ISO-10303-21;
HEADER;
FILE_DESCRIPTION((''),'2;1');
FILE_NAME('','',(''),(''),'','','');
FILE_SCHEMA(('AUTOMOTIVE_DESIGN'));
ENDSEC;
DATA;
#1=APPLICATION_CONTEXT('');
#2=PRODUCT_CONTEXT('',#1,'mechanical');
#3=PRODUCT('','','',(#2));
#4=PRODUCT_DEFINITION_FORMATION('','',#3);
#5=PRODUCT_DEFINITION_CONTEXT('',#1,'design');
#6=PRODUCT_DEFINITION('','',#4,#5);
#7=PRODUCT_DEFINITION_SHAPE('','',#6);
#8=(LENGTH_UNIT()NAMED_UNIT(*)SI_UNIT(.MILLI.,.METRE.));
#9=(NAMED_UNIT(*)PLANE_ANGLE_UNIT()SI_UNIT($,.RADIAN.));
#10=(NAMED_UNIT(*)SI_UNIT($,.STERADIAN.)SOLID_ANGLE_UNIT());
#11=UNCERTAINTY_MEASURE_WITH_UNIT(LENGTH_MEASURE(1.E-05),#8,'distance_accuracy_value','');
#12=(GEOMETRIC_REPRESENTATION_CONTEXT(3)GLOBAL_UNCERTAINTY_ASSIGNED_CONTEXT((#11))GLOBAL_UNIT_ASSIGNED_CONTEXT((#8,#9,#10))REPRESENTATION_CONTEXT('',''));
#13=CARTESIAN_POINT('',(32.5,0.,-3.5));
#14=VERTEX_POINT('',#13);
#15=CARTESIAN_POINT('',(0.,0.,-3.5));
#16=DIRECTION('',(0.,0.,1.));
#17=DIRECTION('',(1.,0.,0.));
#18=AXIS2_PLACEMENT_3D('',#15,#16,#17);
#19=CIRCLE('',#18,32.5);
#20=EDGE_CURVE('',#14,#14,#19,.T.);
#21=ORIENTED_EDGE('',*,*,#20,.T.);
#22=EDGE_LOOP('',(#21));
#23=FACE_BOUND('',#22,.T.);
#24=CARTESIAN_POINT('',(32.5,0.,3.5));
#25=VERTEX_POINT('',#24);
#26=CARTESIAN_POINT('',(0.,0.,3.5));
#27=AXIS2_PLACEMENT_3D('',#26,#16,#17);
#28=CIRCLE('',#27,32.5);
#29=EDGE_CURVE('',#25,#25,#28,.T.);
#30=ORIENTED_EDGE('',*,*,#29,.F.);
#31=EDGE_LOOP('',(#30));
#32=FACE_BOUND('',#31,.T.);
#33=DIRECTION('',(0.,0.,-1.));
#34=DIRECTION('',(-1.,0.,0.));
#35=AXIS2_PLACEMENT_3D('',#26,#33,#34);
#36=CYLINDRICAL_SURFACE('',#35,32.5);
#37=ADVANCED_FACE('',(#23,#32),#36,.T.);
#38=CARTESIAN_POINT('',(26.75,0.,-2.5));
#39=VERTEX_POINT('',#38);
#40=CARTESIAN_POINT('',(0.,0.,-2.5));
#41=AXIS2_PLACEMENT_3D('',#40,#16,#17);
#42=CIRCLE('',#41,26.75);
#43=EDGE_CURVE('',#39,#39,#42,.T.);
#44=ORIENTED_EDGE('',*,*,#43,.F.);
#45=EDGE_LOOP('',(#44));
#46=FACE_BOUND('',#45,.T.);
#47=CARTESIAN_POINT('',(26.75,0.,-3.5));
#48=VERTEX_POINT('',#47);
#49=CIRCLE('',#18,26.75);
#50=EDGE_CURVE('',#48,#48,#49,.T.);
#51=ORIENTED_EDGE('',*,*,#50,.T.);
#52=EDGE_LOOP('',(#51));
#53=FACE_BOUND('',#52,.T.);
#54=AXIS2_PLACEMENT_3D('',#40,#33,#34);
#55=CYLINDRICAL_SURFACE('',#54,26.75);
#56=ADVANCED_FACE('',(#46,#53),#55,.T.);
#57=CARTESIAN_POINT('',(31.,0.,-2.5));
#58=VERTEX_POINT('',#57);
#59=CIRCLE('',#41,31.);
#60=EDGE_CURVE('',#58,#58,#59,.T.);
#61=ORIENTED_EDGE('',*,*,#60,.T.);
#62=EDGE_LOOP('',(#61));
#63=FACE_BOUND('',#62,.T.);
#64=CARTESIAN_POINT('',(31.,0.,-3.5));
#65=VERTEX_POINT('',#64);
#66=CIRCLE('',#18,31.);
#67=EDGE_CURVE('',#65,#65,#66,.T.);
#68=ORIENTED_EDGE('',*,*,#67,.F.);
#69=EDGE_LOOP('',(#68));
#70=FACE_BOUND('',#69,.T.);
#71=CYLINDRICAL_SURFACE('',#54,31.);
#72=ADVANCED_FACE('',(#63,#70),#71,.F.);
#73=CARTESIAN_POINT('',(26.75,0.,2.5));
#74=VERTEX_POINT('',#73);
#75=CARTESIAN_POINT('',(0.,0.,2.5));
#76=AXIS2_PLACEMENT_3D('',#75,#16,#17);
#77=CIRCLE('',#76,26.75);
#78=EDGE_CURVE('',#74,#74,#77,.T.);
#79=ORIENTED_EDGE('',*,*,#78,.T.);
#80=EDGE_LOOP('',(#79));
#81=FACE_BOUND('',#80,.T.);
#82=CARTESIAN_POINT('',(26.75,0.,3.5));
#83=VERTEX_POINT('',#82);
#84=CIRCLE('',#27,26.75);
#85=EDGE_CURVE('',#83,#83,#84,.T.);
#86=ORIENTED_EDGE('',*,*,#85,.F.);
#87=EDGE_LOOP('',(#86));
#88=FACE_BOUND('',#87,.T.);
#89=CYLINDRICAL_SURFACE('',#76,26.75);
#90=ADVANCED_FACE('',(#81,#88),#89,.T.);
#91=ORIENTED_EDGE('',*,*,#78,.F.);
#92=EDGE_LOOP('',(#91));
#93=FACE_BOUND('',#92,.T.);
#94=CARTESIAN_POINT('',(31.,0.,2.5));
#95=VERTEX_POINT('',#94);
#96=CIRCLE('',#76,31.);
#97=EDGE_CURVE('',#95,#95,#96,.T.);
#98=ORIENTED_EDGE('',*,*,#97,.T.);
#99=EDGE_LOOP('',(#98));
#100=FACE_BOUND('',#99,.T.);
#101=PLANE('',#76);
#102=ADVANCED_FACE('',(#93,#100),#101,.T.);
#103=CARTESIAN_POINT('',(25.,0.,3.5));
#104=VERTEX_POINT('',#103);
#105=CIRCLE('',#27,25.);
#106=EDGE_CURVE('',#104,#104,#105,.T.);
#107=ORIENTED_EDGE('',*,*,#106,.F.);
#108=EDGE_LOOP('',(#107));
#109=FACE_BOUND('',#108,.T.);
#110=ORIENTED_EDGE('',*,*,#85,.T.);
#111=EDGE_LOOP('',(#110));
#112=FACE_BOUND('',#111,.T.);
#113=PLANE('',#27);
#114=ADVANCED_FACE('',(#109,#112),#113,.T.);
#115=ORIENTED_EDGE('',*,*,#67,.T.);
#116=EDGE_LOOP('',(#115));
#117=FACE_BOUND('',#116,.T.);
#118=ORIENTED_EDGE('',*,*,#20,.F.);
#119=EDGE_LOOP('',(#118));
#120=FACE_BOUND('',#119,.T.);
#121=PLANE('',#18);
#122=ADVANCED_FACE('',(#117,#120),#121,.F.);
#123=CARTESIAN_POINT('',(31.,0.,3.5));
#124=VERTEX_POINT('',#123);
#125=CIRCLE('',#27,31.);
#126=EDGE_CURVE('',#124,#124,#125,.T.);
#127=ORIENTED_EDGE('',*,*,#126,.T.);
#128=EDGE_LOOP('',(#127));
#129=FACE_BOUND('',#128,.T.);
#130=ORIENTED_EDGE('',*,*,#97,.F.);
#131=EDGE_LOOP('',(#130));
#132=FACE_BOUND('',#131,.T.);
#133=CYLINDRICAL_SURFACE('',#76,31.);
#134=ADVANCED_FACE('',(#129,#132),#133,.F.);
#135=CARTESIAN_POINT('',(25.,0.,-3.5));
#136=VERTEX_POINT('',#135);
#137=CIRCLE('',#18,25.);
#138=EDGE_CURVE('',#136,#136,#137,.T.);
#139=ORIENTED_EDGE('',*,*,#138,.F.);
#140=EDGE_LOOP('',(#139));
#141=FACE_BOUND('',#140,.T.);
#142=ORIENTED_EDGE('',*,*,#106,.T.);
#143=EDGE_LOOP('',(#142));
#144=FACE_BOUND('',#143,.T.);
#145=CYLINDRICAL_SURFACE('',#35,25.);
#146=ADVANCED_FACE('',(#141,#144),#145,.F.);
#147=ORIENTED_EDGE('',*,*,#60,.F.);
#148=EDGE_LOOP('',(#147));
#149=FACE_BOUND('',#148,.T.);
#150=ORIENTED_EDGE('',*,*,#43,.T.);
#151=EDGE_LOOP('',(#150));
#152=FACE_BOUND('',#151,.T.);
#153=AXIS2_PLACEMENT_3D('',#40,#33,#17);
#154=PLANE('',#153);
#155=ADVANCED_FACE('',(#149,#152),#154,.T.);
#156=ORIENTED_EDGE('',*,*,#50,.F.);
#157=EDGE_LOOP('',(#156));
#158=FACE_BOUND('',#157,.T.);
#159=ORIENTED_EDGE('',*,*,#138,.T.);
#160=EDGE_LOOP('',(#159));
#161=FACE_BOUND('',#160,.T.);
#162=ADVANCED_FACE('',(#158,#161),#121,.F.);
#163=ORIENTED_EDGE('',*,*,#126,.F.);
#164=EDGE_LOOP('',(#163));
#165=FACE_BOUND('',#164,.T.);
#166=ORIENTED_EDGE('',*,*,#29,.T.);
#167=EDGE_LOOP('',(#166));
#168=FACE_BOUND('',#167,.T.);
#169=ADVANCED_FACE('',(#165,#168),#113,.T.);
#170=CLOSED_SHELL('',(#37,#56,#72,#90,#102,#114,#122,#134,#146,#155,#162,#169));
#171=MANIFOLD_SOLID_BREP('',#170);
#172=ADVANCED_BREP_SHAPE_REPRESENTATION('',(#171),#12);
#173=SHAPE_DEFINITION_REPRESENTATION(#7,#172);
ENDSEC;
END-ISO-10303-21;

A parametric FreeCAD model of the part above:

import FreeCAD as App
import Part
import Sketcher

doc = App.newDocument("Part")
body = doc.addObject("PartDesign::Body", "Body")

# Sketch on XY plane
sketch1 = body.newObject("Sketcher::SketchObject", "Sketch")
sketch1.AttachmentSupport = (doc.getObject("XY_Plane"), [""])
sketch1.MapMode = "FlatFace"
sketch1.addGeometry([
    Part.Circle(App.Vector(0, 0, 0), App.Vector(0, 0, 1), 32.5),
    Part.Circle(App.Vector(0, 0, 0), App.Vector(0, 0, 1), 25),
], False)
sketch1.addConstraint([
    Sketcher.Constraint("Coincident", 0, 3, -1, 1),
    Sketcher.Constraint("Coincident", 1, 3, -1, 1),
    Sketcher.Constraint("Diameter", 0, 65.0),
    Sketcher.Constraint("Diameter", 1, 50.0),
])
pad1 = body.newObject("PartDesign::Pad", "Pad")
pad1.Profile = sketch1
pad1.Length = 7
pad1.Midplane = True

# Sketch on XY plane
sketch2 = body.newObject("Sketcher::SketchObject", "Sketch001")
sketch2.AttachmentSupport = (doc.getObject("XY_Plane"), [""])
sketch2.MapMode = "FlatFace"
sketch2.AttachmentOffset = App.Placement(App.Vector(0, 0, 3.5), App.Rotation())
sketch2.addGeometry([
    Part.Circle(App.Vector(0, 0, 0), App.Vector(0, 0, 1), 31),
    Part.Circle(App.Vector(0, 0, 0), App.Vector(0, 0, 1), 26.75),
], False)
sketch2.addConstraint([
    Sketcher.Constraint("Coincident", 0, 3, -1, 1),
    Sketcher.Constraint("Coincident", 1, 3, -1, 1),
    Sketcher.Constraint("Diameter", 0, 62.0),
    Sketcher.Constraint("Diameter", 1, 53.5),
])
pocket1 = body.newObject("PartDesign::Pocket", "Pocket")
pocket1.Profile = sketch2
pocket1.Length = 1
doc.recompute()

mirrored = body.newObject("PartDesign::Mirrored", "Mirrored")
mirrored.Originals = [pocket1]
mirrored.MirrorPlane = (doc.getObject("XY_Plane"), [""])
body.Tip = mirrored

doc.recompute()
